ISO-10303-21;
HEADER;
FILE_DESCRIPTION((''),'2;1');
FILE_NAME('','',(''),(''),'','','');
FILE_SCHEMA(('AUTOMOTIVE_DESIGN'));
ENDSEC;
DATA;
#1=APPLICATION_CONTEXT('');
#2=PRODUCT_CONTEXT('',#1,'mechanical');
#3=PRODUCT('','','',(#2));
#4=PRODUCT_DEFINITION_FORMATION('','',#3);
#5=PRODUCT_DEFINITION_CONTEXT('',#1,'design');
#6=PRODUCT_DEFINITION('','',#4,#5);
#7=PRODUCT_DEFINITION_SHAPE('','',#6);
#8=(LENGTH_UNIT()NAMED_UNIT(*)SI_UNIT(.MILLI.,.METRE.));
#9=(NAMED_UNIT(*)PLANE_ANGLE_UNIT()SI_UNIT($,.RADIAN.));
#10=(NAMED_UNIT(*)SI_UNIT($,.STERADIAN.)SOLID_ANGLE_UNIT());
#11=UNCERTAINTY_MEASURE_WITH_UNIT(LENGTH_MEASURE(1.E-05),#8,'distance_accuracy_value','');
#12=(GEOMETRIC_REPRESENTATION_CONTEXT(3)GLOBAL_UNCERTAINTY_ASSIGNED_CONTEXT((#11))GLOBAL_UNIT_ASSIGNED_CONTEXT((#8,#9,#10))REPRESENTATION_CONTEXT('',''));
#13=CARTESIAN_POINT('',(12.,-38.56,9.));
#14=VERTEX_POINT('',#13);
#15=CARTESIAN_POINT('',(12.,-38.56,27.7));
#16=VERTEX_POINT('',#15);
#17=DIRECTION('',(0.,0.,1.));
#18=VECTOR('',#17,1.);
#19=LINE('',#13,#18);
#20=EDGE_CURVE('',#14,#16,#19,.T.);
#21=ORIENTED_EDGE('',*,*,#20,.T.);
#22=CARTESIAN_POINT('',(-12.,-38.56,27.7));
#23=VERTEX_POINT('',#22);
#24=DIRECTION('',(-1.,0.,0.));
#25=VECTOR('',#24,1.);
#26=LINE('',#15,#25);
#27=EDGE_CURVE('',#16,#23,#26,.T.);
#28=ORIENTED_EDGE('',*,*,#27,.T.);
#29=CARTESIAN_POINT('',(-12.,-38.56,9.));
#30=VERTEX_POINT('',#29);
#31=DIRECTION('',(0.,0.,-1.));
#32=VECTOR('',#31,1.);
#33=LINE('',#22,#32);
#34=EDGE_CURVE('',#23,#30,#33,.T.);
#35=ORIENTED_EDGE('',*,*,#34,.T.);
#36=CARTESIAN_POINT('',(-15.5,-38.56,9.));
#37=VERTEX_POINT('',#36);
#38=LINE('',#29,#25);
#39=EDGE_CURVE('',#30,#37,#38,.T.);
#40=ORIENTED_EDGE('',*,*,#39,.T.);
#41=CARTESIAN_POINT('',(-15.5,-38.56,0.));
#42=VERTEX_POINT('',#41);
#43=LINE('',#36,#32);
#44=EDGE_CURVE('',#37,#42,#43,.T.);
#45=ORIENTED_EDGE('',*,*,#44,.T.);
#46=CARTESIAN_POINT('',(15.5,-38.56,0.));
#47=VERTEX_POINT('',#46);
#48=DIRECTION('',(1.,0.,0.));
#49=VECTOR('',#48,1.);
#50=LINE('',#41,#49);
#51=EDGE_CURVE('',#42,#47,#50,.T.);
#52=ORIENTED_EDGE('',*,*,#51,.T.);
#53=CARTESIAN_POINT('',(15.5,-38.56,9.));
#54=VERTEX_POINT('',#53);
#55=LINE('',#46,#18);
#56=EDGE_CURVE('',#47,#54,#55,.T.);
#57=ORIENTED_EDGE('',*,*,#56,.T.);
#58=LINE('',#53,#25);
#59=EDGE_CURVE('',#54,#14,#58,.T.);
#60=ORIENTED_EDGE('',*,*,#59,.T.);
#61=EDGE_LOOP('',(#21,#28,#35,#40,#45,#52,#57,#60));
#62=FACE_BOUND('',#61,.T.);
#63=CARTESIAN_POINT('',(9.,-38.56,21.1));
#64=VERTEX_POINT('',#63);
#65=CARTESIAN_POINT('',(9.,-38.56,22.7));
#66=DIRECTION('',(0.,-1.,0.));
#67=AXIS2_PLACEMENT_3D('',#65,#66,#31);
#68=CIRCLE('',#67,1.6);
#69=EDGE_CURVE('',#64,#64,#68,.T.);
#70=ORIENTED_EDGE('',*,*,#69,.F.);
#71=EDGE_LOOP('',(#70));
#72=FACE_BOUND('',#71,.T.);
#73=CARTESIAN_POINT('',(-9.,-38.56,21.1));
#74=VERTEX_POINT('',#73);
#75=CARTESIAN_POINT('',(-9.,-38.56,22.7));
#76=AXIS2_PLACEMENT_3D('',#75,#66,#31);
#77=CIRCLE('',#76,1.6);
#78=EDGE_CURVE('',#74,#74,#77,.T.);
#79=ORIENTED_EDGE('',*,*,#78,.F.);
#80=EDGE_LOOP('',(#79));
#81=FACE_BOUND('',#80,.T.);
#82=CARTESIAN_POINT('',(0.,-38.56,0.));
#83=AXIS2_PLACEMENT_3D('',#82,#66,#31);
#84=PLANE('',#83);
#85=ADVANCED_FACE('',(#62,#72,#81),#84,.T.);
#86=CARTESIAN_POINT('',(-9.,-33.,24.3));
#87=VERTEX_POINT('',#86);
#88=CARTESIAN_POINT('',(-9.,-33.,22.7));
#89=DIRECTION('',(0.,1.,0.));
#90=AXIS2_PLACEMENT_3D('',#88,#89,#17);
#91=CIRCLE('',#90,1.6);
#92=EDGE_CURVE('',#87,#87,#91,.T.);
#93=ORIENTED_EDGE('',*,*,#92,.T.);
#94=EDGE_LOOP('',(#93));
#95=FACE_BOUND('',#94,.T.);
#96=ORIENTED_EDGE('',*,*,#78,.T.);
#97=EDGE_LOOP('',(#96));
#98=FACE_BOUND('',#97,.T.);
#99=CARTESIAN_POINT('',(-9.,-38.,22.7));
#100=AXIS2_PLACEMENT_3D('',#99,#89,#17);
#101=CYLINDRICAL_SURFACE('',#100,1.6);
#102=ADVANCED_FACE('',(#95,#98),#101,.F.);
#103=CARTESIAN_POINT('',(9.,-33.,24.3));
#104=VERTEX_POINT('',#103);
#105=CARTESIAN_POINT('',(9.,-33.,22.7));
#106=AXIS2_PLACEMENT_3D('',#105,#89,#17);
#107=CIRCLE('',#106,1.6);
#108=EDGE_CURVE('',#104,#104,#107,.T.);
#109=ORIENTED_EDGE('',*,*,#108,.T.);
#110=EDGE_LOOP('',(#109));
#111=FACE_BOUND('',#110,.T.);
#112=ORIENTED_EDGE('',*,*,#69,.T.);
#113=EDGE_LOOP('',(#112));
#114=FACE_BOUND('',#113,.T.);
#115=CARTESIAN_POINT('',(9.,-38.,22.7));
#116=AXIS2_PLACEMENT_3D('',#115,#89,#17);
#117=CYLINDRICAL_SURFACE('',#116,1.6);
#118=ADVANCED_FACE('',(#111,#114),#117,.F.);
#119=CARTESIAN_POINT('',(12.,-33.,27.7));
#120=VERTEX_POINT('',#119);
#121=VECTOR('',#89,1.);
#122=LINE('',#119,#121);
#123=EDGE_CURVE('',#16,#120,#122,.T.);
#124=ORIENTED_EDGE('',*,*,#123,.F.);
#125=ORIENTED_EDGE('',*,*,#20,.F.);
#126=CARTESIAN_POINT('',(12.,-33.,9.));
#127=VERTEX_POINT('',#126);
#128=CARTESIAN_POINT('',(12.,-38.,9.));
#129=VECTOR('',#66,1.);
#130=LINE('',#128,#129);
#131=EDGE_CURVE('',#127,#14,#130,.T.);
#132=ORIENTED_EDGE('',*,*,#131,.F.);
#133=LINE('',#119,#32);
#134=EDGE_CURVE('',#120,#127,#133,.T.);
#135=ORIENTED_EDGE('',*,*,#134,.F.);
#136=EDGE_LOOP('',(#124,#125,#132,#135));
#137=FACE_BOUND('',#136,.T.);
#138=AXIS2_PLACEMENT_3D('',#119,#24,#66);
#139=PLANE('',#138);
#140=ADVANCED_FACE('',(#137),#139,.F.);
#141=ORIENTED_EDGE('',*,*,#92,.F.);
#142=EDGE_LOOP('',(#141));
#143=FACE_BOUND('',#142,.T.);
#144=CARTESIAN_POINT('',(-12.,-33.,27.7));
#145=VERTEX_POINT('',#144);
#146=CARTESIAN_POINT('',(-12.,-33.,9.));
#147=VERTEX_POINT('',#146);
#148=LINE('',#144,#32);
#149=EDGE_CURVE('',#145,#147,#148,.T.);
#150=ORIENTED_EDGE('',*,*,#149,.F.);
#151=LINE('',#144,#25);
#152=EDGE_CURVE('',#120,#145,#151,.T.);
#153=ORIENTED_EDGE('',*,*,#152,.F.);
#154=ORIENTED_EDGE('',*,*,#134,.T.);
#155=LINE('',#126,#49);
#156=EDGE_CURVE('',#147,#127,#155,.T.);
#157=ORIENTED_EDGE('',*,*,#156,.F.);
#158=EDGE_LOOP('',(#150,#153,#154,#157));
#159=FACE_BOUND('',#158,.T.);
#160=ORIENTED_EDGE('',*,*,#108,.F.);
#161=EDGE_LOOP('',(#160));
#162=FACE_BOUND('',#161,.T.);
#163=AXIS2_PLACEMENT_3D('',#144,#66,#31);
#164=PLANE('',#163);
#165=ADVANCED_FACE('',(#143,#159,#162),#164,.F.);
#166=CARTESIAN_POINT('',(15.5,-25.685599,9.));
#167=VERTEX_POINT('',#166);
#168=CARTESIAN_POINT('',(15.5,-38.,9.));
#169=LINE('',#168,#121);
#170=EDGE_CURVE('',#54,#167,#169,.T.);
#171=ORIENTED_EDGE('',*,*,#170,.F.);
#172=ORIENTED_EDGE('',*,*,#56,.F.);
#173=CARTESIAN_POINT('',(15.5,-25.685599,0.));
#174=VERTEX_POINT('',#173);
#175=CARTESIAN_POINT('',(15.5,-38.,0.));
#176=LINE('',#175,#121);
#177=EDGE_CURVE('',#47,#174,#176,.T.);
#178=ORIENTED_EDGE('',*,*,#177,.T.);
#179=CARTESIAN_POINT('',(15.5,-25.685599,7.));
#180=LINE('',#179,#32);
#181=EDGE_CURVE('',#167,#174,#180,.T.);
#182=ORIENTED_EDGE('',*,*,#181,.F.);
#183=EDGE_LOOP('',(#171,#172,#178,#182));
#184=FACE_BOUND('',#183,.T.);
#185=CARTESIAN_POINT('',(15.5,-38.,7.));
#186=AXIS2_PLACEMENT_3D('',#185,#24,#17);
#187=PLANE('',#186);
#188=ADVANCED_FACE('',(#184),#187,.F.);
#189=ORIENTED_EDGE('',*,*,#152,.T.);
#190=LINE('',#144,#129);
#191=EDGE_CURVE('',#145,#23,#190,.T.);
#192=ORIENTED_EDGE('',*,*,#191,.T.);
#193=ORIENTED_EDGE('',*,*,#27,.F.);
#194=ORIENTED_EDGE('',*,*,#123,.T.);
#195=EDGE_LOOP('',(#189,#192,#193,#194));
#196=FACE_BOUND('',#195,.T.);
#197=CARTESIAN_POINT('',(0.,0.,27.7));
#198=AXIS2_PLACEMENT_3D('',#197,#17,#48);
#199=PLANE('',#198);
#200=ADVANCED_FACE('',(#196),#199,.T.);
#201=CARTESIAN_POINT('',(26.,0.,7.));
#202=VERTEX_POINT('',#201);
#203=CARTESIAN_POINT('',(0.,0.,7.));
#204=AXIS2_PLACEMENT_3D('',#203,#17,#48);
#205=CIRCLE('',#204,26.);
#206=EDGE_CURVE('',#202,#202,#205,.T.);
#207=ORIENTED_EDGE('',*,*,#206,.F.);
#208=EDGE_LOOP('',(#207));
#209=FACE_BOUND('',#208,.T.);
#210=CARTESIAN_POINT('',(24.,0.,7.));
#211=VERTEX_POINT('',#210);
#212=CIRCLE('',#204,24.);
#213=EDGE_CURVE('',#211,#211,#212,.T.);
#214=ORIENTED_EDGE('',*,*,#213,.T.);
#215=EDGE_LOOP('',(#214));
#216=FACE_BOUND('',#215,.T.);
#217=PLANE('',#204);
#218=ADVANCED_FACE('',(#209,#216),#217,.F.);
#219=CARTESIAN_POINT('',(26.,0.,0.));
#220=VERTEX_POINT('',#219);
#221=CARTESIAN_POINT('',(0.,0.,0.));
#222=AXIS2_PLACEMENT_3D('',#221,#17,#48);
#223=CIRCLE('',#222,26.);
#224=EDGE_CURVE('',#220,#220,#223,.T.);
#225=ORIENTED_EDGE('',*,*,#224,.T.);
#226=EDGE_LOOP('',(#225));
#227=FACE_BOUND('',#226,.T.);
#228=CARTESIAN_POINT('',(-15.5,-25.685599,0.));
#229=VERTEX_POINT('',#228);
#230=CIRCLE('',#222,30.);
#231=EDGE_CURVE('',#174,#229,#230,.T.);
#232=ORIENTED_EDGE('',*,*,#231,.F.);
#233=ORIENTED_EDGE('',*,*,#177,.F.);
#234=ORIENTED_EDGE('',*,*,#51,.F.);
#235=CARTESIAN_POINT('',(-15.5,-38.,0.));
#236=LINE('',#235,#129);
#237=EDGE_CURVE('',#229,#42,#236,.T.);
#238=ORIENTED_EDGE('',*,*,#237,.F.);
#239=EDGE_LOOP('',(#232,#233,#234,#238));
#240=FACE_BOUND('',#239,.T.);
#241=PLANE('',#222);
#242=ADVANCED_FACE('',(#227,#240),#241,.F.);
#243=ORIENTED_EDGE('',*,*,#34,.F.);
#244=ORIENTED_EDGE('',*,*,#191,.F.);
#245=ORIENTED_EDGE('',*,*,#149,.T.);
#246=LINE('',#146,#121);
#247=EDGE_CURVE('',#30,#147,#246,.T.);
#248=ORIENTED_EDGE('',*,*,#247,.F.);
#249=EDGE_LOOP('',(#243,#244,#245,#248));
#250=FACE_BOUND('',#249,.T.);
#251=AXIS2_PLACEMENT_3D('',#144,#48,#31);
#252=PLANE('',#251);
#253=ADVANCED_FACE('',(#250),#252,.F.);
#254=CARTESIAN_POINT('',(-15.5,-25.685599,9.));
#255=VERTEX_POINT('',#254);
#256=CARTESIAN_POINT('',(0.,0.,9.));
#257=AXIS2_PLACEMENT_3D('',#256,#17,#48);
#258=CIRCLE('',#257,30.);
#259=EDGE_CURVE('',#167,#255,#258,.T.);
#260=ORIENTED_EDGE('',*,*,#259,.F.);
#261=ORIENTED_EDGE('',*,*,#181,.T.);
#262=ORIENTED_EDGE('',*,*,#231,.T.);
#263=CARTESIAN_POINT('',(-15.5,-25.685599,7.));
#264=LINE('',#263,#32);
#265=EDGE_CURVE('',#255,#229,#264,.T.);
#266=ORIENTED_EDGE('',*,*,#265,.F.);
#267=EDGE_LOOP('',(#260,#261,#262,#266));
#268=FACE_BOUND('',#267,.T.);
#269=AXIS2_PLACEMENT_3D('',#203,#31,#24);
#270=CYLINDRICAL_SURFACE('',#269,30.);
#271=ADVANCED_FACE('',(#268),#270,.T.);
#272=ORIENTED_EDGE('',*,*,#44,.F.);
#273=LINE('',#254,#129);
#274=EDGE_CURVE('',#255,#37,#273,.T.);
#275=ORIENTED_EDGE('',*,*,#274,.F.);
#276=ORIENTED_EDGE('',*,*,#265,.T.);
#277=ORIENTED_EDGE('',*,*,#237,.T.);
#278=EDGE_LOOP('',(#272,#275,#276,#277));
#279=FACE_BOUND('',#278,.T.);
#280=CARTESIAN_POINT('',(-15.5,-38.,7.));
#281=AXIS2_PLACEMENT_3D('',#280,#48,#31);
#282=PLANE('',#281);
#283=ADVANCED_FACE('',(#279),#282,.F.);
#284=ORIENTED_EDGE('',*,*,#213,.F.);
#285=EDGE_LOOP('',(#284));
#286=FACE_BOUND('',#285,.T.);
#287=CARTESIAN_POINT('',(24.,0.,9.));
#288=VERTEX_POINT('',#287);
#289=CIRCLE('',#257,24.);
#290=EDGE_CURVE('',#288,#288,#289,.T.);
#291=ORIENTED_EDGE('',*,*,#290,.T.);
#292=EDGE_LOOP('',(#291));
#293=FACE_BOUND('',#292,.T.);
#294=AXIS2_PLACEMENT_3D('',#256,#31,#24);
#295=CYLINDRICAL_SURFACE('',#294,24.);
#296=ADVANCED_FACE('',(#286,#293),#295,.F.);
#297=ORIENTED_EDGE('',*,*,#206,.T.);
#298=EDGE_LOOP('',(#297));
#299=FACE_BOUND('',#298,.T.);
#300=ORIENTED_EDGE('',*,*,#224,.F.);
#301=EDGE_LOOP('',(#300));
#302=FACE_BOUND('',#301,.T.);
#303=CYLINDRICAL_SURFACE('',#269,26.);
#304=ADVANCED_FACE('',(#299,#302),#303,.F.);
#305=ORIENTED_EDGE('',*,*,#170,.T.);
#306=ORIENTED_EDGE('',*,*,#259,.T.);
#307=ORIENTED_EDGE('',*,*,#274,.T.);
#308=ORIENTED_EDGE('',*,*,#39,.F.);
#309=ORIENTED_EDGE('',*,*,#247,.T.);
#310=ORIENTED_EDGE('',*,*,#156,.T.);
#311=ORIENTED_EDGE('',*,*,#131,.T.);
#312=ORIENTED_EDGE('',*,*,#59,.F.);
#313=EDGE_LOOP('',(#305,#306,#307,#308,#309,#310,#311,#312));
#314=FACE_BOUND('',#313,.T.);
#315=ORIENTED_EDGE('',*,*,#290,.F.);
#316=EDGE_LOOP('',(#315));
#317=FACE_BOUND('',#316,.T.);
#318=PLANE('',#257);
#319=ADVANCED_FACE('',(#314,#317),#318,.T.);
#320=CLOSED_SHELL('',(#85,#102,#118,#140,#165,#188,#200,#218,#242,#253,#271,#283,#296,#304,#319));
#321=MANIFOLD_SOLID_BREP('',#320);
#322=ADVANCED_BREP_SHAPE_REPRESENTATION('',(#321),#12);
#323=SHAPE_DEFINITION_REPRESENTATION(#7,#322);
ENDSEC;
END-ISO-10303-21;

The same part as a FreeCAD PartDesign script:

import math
import FreeCAD as App
import Part
import Sketcher
Q = App.Units.Quantity

doc = App.newDocument("Part")
body = doc.addObject("PartDesign::Body", "Body")

sketch1 = doc.addObject("Sketcher::SketchObject", "Sketch")
body.addObject(sketch1)
sketch1.AttachmentSupport = (doc.XY_Plane, [""])
sketch1.MapMode = "FlatFace"
sketch1.addGeometry([
    Part.LineSegment(App.Vector(-16, -38, 0), App.Vector(16, -38, 0)),
    Part.LineSegment(App.Vector(16, -38, 0), App.Vector(16, -26, 0)),
    Part.ArcOfCircle(Part.Circle(App.Vector(0, 0, 0), App.Vector(0, 0, 1), 30), math.radians(-59), math.radians(239)),
    Part.LineSegment(App.Vector(-16, -26, 0), App.Vector(-16, -38, 0)),
    Part.Circle(App.Vector(0, 0, 0), App.Vector(0, 0, 1), 26),
], False)
sketch1.addConstraint([
    Sketcher.Constraint("Coincident", 0, 2, 1, 1),
    Sketcher.Constraint("Coincident", 1, 2, 2, 1),
    Sketcher.Constraint("Coincident", 2, 2, 3, 1),
    Sketcher.Constraint("Coincident", 3, 2, 0, 1),
    Sketcher.Constraint("Horizontal", 0),
    Sketcher.Constraint("Vertical", 1),
    Sketcher.Constraint("Vertical", 3),
    Sketcher.Constraint("Coincident", 2, 3, -1, 1),
    Sketcher.Constraint("Coincident", 4, 3, -1, 1),
    Sketcher.Constraint("Horizontal", 1, 2, 2, 2),
    Sketcher.Constraint("Diameter", 4, Q("52 mm")),
    Sketcher.Constraint("Radius", 2, Q("30 mm")),
    Sketcher.Constraint("DistanceX", 0, 1, 0, 2, Q("31 mm")),
    Sketcher.Constraint("DistanceY", 0, 2, -1, 1, Q("38 mm")),
])
pad1 = doc.addObject("PartDesign::Pad", "Pad")
body.addObject(pad1)
pad1.Profile = sketch1
pad1.Length = 7

sketch2 = doc.addObject("Sketcher::SketchObject", "Sketch001")
body.addObject(sketch2)
sketch2.AttachmentSupport = (doc.XY_Plane, [""])
sketch2.MapMode = "FlatFace"
sketch2.AttachmentOffset = App.Placement(App.Vector(0, 0, 7), App.Rotation())
sketch2.addGeometry([
    Part.Circle(App.Vector(0, 0, 0), App.Vector(0, 0, 1), 30),
    Part.Circle(App.Vector(0, 0, 0), App.Vector(0, 0, 1), 24),
], False)
sketch2.addConstraint([
    Sketcher.Constraint("Coincident", 0, 3, -1, 1),
    Sketcher.Constraint("Coincident", 1, 3, -1, 1),
    Sketcher.Constraint("Diameter", 0, Q("60 mm")),
    Sketcher.Constraint("Diameter", 1, Q("48 mm")),
])
pad2 = doc.addObject("PartDesign::Pad", "Pad001")
body.addObject(pad2)
pad2.Profile = sketch2
pad2.Length = 2

sketch3 = doc.addObject("Sketcher::SketchObject", "Sketch002")
body.addObject(sketch3)
sketch3.AttachmentSupport = (doc.XY_Plane, [""])
sketch3.MapMode = "FlatFace"
sketch3.AttachmentOffset = App.Placement(App.Vector(0, 0, 7), App.Rotation())
sketch3.addGeometry([
    Part.LineSegment(App.Vector(-12, -33, 0), App.Vector(-12, -38, 0)),
    Part.LineSegment(App.Vector(-12, -38, 0), App.Vector(12, -38, 0)),
    Part.LineSegment(App.Vector(12, -38, 0), App.Vector(12, -33, 0)),
    Part.LineSegment(App.Vector(12, -33, 0), App.Vector(-12, -33, 0)),
], False)
sketch3.addConstraint([
    Sketcher.Constraint("Coincident", 0, 2, 1, 1),
    Sketcher.Constraint("Coincident", 1, 2, 2, 1),
    Sketcher.Constraint("Coincident", 2, 2, 3, 1),
    Sketcher.Constraint("Coincident", 3, 2, 0, 1),
    Sketcher.Constraint("Vertical", 0),
    Sketcher.Constraint("Horizontal", 1),
    Sketcher.Constraint("Vertical", 2),
    Sketcher.Constraint("Horizontal", 3),
    Sketcher.Constraint("DistanceX", 1, 1, 1, 2, Q("24 mm")),
    Sketcher.Constraint("DistanceY", 0, 2, 0, 1, Q("5 mm")),
    Sketcher.Constraint("DistanceX", 0, 2, -1, 1, Q("12 mm")),
    Sketcher.Constraint("DistanceY", 0, 2, -1, 1, Q("38 mm")),
])
pad3 = doc.addObject("PartDesign::Pad", "Pad002")
body.addObject(pad3)
pad3.Profile = sketch3
pad3.Length = 20.7

sketch4 = doc.addObject("Sketcher::SketchObject", "Sketch003")
body.addObject(sketch4)
sketch4.AttachmentSupport = (doc.XY_Plane, [""])
sketch4.MapMode = "FlatFace"
sketch4.AttachmentOffset = App.Placement(App.Vector(0, 0, 7), App.Rotation())
sketch4.addGeometry([
    Part.LineSegment(App.Vector(15.5, -38, 0), App.Vector(15.5, -25.7, 0)),
    Part.ArcOfCircle(Part.Circle(App.Vector(0, 0, 0), App.Vector(0, 0, 1), 30), math.radians(-121), math.radians(-59)),
    Part.LineSegment(App.Vector(-15.5, -25.7, 0), App.Vector(-15.5, -38, 0)),
    Part.LineSegment(App.Vector(-15.5, -38, 0), App.Vector(-12, -38, 0)),
    Part.LineSegment(App.Vector(-12, -38, 0), App.Vector(-12, -33, 0)),
    Part.LineSegment(App.Vector(-12, -33, 0), App.Vector(12, -33, 0)),
    Part.LineSegment(App.Vector(12, -33, 0), App.Vector(12, -38, 0)),
    Part.LineSegment(App.Vector(12, -38, 0), App.Vector(15.5, -38, 0)),
], False)
sketch4.addConstraint([
    Sketcher.Constraint("Coincident", 0, 2, 1, 2),
    Sketcher.Constraint("Coincident", 1, 1, 2, 1),
    Sketcher.Constraint("Coincident", 2, 2, 3, 1),
    Sketcher.Constraint("Coincident", 3, 2, 4, 1),
    Sketcher.Constraint("Coincident", 4, 2, 5, 1),
    Sketcher.Constraint("Coincident", 5, 2, 6, 1),
    Sketcher.Constraint("Coincident", 6, 2, 7, 1),
    Sketcher.Constraint("Coincident", 7, 2, 0, 1),
    Sketcher.Constraint("Vertical", 0),
    Sketcher.Constraint("Vertical", 2),
    Sketcher.Constraint("Horizontal", 3),
    Sketcher.Constraint("Vertical", 4),
    Sketcher.Constraint("Horizontal", 5),
    Sketcher.Constraint("Vertical", 6),
    Sketcher.Constraint("Horizontal", 7),
    Sketcher.Constraint("Coincident", 1, 3, -1, 1),
    Sketcher.Constraint("Symmetric", 3, 2, 6, 2, -2),
    Sketcher.Constraint("Horizontal", 0, 2, 1, 1),
    Sketcher.Constraint("Radius", 1, Q("30 mm")),
    Sketcher.Constraint("DistanceX", 5, 1, 5, 2, Q("24 mm")),
    Sketcher.Constraint("DistanceY", 4, 1, 4, 2, Q("5 mm")),
    Sketcher.Constraint("DistanceX", 3, 1, 3, 2, Q("3.5 mm")),
    Sketcher.Constraint("DistanceY", 2, 2, -1, 1, Q("38 mm")),
])
pad4 = doc.addObject("PartDesign::Pad", "Pad003")
body.addObject(pad4)
pad4.Profile = sketch4
pad4.Length = 2

sketch5 = doc.addObject("Sketcher::SketchObject", "Sketch004")
body.addObject(sketch5)
sketch5.AttachmentSupport = (doc.XZ_Plane, [""])
sketch5.MapMode = "FlatFace"
sketch5.AttachmentOffset = App.Placement(App.Vector(0, 0, 33), App.Rotation())
sketch5.addGeometry([
    Part.Circle(App.Vector(-9, 22.7, 0), App.Vector(0, 0, 1), 1.6),
    Part.Circle(App.Vector(9, 22.7, 0), App.Vector(0, 0, 1), 1.6),
], False)
sketch5.addConstraint([
    Sketcher.Constraint("Equal", 0, 1),
    Sketcher.Constraint("Symmetric", 0, 3, 1, 3, -2),
    Sketcher.Constraint("Diameter", 0, Q("3.2 mm")),
    Sketcher.Constraint("DistanceX", 0, 3, -1, 1, Q("9 mm")),
    Sketcher.Constraint("DistanceY", -1, 1, 0, 3, Q("22.7 mm")),
])
pocket1 = doc.addObject("PartDesign::Pocket", "Pocket")
body.addObject(pocket1)
pocket1.Profile = sketch5
pocket1.Type = "ThroughAll"
pocket1.Reversed = True

sketch6 = doc.addObject("Sketcher::SketchObject", "Sketch005")
body.addObject(sketch6)
sketch6.AttachmentSupport = (doc.XZ_Plane, [""])
sketch6.MapMode = "FlatFace"
sketch6.AttachmentOffset = App.Placement(App.Vector(0, 0, 38), App.Rotation())
sketch6.addGeometry([
    Part.LineSegment(App.Vector(15.5, 0, 0), App.Vector(15.5, 9, 0)),
    Part.LineSegment(App.Vector(15.5, 9, 0), App.Vector(12, 9, 0)),
    Part.LineSegment(App.Vector(12, 9, 0), App.Vector(12, 27.7, 0)),
    Part.LineSegment(App.Vector(12, 27.7, 0), App.Vector(-12, 27.7, 0)),
    Part.LineSegment(App.Vector(-12, 27.7, 0), App.Vector(-12, 9, 0)),
    Part.LineSegment(App.Vector(-12, 9, 0), App.Vector(-15.5, 9, 0)),
    Part.LineSegment(App.Vector(-15.5, 9, 0), App.Vector(-15.5, 0, 0)),
    Part.LineSegment(App.Vector(-15.5, 0, 0), App.Vector(15.5, 0, 0)),
], False)
sketch6.addConstraint([
    Sketcher.Constraint("Coincident", 0, 2, 1, 1),
    Sketcher.Constraint("Coincident", 1, 2, 2, 1),
    Sketcher.Constraint("Coincident", 2, 2, 3, 1),
    Sketcher.Constraint("Coincident", 3, 2, 4, 1),
    Sketcher.Constraint("Coincident", 4, 2, 5, 1),
    Sketcher.Constraint("Coincident", 5, 2, 6, 1),
    Sketcher.Constraint("Coincident", 6, 2, 7, 1),
    Sketcher.Constraint("Coincident", 7, 2, 0, 1),
    Sketcher.Constraint("Vertical", 0),
    Sketcher.Constraint("Horizontal", 1),
    Sketcher.Constraint("Vertical", 2),
    Sketcher.Constraint("Horizontal", 3),
    Sketcher.Constraint("Vertical", 4),
    Sketcher.Constraint("Horizontal", 5),
    Sketcher.Constraint("Vertical", 6),
    Sketcher.Constraint("Horizontal", 7),
    Sketcher.Constraint("Symmetric", 6, 2, 7, 2, -1, 1),
    Sketcher.Constraint("Symmetric", 1, 2, 4, 2, -2),
    Sketcher.Constraint("DistanceX", 3, 2, 3, 1, Q("24 mm")),
    Sketcher.Constraint("DistanceX", 7, 1, 7, 2, Q("31 mm")),
    Sketcher.Constraint("DistanceY", 0, 1, 0, 2, Q("9 mm")),
    Sketcher.Constraint("DistanceY", 2, 1, 2, 2, Q("18.7 mm")),
])
pad5 = doc.addObject("PartDesign::Pad", "Pad004")
body.addObject(pad5)
pad5.Profile = sketch6
pad5.Length = 0.56

sketch7 = doc.addObject("Sketcher::SketchObject", "Sketch006")
body.addObject(sketch7)
sketch7.AttachmentSupport = (doc.XZ_Plane, [""])
sketch7.MapMode = "FlatFace"
sketch7.AttachmentOffset = App.Placement(App.Vector(0, 0, 33), App.Rotation())
sketch7.addGeometry([
    Part.Circle(App.Vector(9, 22.7, 0), App.Vector(0, 0, 1), 1.6),
    Part.Circle(App.Vector(-9, 22.7, 0), App.Vector(0, 0, 1), 1.6),
], False)
sketch7.addConstraint([
    Sketcher.Constraint("Equal", 0, 1),
    Sketcher.Constraint("Symmetric", 0, 3, 1, 3, -2),
    Sketcher.Constraint("Diameter", 0, Q("3.2 mm")),
    Sketcher.Constraint("DistanceX", -1, 1, 0, 3, Q("9 mm")),
    Sketcher.Constraint("DistanceY", -1, 1, 0, 3, Q("22.7 mm")),
])
pocket2 = doc.addObject("PartDesign::Pocket", "Pocket001")
body.addObject(pocket2)
pocket2.Profile = sketch7
pocket2.Length = 25
pocket2.Reversed = True

doc.recompute()
